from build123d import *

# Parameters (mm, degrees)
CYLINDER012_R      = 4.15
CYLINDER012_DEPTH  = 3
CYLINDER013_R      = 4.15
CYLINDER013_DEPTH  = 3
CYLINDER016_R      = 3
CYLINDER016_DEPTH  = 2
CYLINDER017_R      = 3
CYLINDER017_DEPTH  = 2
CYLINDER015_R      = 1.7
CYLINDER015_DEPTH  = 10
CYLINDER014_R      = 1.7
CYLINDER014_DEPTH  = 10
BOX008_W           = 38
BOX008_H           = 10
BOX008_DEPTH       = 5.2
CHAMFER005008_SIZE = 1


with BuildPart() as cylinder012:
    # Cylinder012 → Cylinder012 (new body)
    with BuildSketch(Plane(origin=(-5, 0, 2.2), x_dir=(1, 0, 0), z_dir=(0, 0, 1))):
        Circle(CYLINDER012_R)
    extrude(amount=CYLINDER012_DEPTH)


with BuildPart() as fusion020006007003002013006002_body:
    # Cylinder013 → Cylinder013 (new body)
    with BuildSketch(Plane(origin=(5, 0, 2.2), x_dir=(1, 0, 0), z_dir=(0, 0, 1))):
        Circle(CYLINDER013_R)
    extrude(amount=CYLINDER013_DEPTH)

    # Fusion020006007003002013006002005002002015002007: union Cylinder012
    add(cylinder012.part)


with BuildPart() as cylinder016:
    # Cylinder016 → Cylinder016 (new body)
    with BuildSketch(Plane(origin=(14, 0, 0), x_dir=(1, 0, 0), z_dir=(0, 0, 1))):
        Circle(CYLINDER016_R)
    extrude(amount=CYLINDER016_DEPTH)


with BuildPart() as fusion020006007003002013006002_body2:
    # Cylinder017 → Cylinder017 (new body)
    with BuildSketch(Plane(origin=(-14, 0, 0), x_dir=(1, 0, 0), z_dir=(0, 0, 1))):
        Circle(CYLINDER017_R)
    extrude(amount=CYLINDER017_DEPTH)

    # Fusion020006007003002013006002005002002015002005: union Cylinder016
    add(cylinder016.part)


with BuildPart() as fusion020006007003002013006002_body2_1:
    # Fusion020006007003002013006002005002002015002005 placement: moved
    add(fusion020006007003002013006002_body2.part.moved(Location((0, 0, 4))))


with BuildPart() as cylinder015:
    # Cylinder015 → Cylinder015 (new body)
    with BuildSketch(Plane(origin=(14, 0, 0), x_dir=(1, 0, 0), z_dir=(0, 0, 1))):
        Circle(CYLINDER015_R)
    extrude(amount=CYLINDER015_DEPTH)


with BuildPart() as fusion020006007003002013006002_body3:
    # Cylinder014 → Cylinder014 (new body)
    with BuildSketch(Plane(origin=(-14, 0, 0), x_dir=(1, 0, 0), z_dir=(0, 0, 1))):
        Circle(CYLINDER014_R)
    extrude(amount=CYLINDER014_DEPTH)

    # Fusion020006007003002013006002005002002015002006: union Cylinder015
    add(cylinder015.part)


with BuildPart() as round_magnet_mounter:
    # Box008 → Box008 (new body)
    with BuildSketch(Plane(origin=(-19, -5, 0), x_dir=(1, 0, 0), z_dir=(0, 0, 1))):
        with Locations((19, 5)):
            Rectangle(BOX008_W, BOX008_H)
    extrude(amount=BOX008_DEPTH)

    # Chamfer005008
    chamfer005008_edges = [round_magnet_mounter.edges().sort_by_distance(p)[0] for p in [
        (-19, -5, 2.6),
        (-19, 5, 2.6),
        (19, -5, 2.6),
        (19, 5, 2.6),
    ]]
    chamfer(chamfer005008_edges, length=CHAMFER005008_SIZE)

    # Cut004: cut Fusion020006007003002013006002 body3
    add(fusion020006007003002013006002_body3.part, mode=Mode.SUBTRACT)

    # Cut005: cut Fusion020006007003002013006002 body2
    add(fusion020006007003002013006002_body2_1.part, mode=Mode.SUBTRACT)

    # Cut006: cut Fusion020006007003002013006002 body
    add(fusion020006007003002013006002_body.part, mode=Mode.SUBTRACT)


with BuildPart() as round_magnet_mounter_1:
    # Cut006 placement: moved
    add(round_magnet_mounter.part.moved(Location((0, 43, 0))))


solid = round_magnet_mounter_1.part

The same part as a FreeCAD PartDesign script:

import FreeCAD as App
import Part
import Sketcher


def edges_at(feature, points):
    """Names of the edges that pass closest to the given points."""
    edges = feature.Shape.Edges
    near = lambda p: min(range(len(edges)), key=lambda i: edges[i].distToShape(Part.Vertex(*p))[0])
    return sorted({f"Edge{near(p) + 1}" for p in points})

doc = App.newDocument("Part")
body = doc.addObject("PartDesign::Body", "Body")

sketch1 = doc.addObject("Sketcher::SketchObject", "Sketch")
body.addObject(sketch1)
sketch1.AttachmentSupport = (doc.XY_Plane, [""])
sketch1.MapMode = "FlatFace"
sketch1.AttachmentOffset = App.Placement(App.Vector(0, 0, 2.2), App.Rotation())
sketch1.addGeometry(Part.Circle(App.Vector(-5, 0, 0), App.Vector(0, 0, 1), 4.2), False)
sketch1.addConstraint(Sketcher.Constraint("PointOnObject", 0, 3, -1))
sketch1.addConstraint(Sketcher.Constraint("Diameter", 0, 8.3))
sketch1.addConstraint(Sketcher.Constraint("DistanceX", 0, 3, -1, 1, 5.0))
pad1 = doc.addObject("PartDesign::Pad", "Pad")
body.addObject(pad1)
pad1.Profile = sketch1
pad1.Length = 3
body2 = doc.addObject("PartDesign::Body", "Body001")
body2.AllowCompound = True

sketch2 = doc.addObject("Sketcher::SketchObject", "Sketch001")
body2.addObject(sketch2)
sketch2.AttachmentSupport = (doc.getObject("XY_Plane001"), [""])
sketch2.MapMode = "FlatFace"
sketch2.AttachmentOffset = App.Placement(App.Vector(0, 0, 2.2), App.Rotation())
sketch2.addGeometry(Part.Circle(App.Vector(5, 0, 0), App.Vector(0, 0, 1), 4.2), False)
sketch2.addConstraint(Sketcher.Constraint("PointOnObject", 0, 3, -1))
sketch2.addConstraint(Sketcher.Constraint("Diameter", 0, 8.3))
sketch2.addConstraint(Sketcher.Constraint("DistanceX", -1, 1, 0, 3, 5.0))
pad2 = doc.addObject("PartDesign::Pad", "Pad001")
body2.addObject(pad2)
pad2.Profile = sketch2
pad2.Length = 3
doc.recompute()

boolean = doc.addObject("PartDesign::Boolean", "Boolean")
body2.addObject(boolean)
boolean.Type = "Fuse"
boolean.addObjects([body])
body3 = doc.addObject("PartDesign::Body", "Body002")

sketch3 = doc.addObject("Sketcher::SketchObject", "Sketch002")
body3.addObject(sketch3)
sketch3.AttachmentSupport = (doc.getObject("XY_Plane002"), [""])
sketch3.MapMode = "FlatFace"
sketch3.addGeometry(Part.Circle(App.Vector(14, 0, 0), App.Vector(0, 0, 1), 3), False)
sketch3.addConstraint(Sketcher.Constraint("PointOnObject", 0, 3, -1))
sketch3.addConstraint(Sketcher.Constraint("Diameter", 0, 6.0))
sketch3.addConstraint(Sketcher.Constraint("DistanceX", -1, 1, 0, 3, 14.0))
pad3 = doc.addObject("PartDesign::Pad", "Pad002")
body3.addObject(pad3)
pad3.Profile = sketch3
pad3.Length = 2
body4 = doc.addObject("PartDesign::Body", "Body003")
body4.AllowCompound = True

sketch4 = doc.addObject("Sketcher::SketchObject", "Sketch003")
body4.addObject(sketch4)
sketch4.AttachmentSupport = (doc.getObject("XY_Plane003"), [""])
sketch4.MapMode = "FlatFace"
sketch4.addGeometry(Part.Circle(App.Vector(-14, 0, 0), App.Vector(0, 0, 1), 3), False)
sketch4.addConstraint(Sketcher.Constraint("PointOnObject", 0, 3, -1))
sketch4.addConstraint(Sketcher.Constraint("Diameter", 0, 6.0))
sketch4.addConstraint(Sketcher.Constraint("DistanceX", 0, 3, -1, 1, 14.0))
pad4 = doc.addObject("PartDesign::Pad", "Pad003")
body4.addObject(pad4)
pad4.Profile = sketch4
pad4.Length = 2
doc.recompute()

boolean2 = doc.addObject("PartDesign::Boolean", "Boolean001")
body4.addObject(boolean2)
boolean2.Type = "Fuse"
boolean2.addObjects([body3])
body5 = doc.addObject("PartDesign::Body", "Body004")
body5.AllowCompound = True
doc.recompute()

body4.Placement = App.Placement(App.Vector(0, 0, 4), App.Rotation(App.Vector(0, 0, 1), 0))
boolean3 = doc.addObject("PartDesign::Boolean", "Boolean002")
body5.addObject(boolean3)
boolean3.Type = "Fuse"
boolean3.addObjects([body4])
body6 = doc.addObject("PartDesign::Body", "Body005")

sketch5 = doc.addObject("Sketcher::SketchObject", "Sketch004")
body6.addObject(sketch5)
sketch5.AttachmentSupport = (doc.getObject("XY_Plane005"), [""])
sketch5.MapMode = "FlatFace"
sketch5.addGeometry(Part.Circle(App.Vector(14, 0, 0), App.Vector(0, 0, 1), 1.7), False)
sketch5.addConstraint(Sketcher.Constraint("PointOnObject", 0, 3, -1))
sketch5.addConstraint(Sketcher.Constraint("Diameter", 0, 3.4))
sketch5.addConstraint(Sketcher.Constraint("DistanceX", -1, 1, 0, 3, 14.0))
pad5 = doc.addObject("PartDesign::Pad", "Pad004")
body6.addObject(pad5)
pad5.Profile = sketch5
pad5.Length = 10
body7 = doc.addObject("PartDesign::Body", "Body006")
body7.AllowCompound = True

sketch6 = doc.addObject("Sketcher::SketchObject", "Sketch005")
body7.addObject(sketch6)
sketch6.AttachmentSupport = (doc.getObject("XY_Plane006"), [""])
sketch6.MapMode = "FlatFace"
sketch6.addGeometry(Part.Circle(App.Vector(-14, 0, 0), App.Vector(0, 0, 1), 1.7), False)
sketch6.addConstraint(Sketcher.Constraint("PointOnObject", 0, 3, -1))
sketch6.addConstraint(Sketcher.Constraint("Diameter", 0, 3.4))
sketch6.addConstraint(Sketcher.Constraint("DistanceX", 0, 3, -1, 1, 14.0))
pad6 = doc.addObject("PartDesign::Pad", "Pad005")
body7.addObject(pad6)
pad6.Profile = sketch6
pad6.Length = 10
doc.recompute()

boolean4 = doc.addObject("PartDesign::Boolean", "Boolean003")
body7.addObject(boolean4)
boolean4.Type = "Fuse"
boolean4.addObjects([body6])
body8 = doc.addObject("PartDesign::Body", "Body007")

sketch7 = doc.addObject("Sketcher::SketchObject", "Sketch006")
body8.addObject(sketch7)
sketch7.AttachmentSupport = (doc.getObject("XY_Plane007"), [""])
sketch7.MapMode = "FlatFace"
sketch7.addGeometry(Part.LineSegment(App.Vector(-19, 5, 0), App.Vector(-19, -5, 0)), False)
sketch7.addGeometry(Part.LineSegment(App.Vector(-19, -5, 0), App.Vector(19, -5, 0)), False)
sketch7.addGeometry(Part.LineSegment(App.Vector(19, -5, 0), App.Vector(19, 5, 0)), False)
sketch7.addGeometry(Part.LineSegment(App.Vector(19, 5, 0), App.Vector(-19, 5, 0)), False)
sketch7.addConstraint(Sketcher.Constraint("Coincident", 0, 2, 1, 1))
sketch7.addConstraint(Sketcher.Constraint("Coincident", 1, 2, 2, 1))
sketch7.addConstraint(Sketcher.Constraint("Coincident", 2, 2, 3, 1))
sketch7.addConstraint(Sketcher.Constraint("Coincident", 3, 2, 0, 1))
sketch7.addConstraint(Sketcher.Constraint("Vertical", 0))
sketch7.addConstraint(Sketcher.Constraint("Horizontal", 1))
sketch7.addConstraint(Sketcher.Constraint("Vertical", 2))
sketch7.addConstraint(Sketcher.Constraint("Horizontal", 3))
sketch7.addConstraint(Sketcher.Constraint("Symmetric", 0, 2, 2, 2, -1, 1))
sketch7.addConstraint(Sketcher.Constraint("DistanceX", 1, 1, 1, 2, 38.0))
sketch7.addConstraint(Sketcher.Constraint("DistanceY", 0, 2, 0, 1, 10.0))
pad7 = doc.addObject("PartDesign::Pad", "Pad006")
body8.addObject(pad7)
pad7.Profile = sketch7
pad7.Length = 5.2
doc.recompute()

chamfer = doc.addObject("PartDesign::Chamfer", "Chamfer")
body8.addObject(chamfer)
chamfer.Base = (pad7, edges_at(pad7, [
    (-19, -5, 2.6),
    (-19, 5, 2.6),
    (19, -5, 2.6),
    (19, 5, 2.6),
]))
chamfer.Size = 1
doc.recompute()

boolean5 = doc.addObject("PartDesign::Boolean", "Boolean004")
body8.addObject(boolean5)
boolean5.Type = "Cut"
boolean5.addObjects([body7])
doc.recompute()

boolean6 = doc.addObject("PartDesign::Boolean", "Boolean005")
body8.addObject(boolean6)
boolean6.Type = "Cut"
boolean6.addObjects([body5])
doc.recompute()

boolean7 = doc.addObject("PartDesign::Boolean", "Boolean006")
body8.addObject(boolean7)
boolean7.Type = "Cut"
boolean7.addObjects([body2])
body9 = doc.addObject("PartDesign::Body", "Body008")
doc.recompute()

body8.Placement = App.Placement(App.Vector(0, 43, 0), App.Rotation(App.Vector(0, 0, 1), 0))
boolean8 = doc.addObject("PartDesign::Boolean", "Boolean007")
body9.addObject(boolean8)
boolean8.Type = "Fuse"
boolean8.addObjects([body8])

doc.recompute()
